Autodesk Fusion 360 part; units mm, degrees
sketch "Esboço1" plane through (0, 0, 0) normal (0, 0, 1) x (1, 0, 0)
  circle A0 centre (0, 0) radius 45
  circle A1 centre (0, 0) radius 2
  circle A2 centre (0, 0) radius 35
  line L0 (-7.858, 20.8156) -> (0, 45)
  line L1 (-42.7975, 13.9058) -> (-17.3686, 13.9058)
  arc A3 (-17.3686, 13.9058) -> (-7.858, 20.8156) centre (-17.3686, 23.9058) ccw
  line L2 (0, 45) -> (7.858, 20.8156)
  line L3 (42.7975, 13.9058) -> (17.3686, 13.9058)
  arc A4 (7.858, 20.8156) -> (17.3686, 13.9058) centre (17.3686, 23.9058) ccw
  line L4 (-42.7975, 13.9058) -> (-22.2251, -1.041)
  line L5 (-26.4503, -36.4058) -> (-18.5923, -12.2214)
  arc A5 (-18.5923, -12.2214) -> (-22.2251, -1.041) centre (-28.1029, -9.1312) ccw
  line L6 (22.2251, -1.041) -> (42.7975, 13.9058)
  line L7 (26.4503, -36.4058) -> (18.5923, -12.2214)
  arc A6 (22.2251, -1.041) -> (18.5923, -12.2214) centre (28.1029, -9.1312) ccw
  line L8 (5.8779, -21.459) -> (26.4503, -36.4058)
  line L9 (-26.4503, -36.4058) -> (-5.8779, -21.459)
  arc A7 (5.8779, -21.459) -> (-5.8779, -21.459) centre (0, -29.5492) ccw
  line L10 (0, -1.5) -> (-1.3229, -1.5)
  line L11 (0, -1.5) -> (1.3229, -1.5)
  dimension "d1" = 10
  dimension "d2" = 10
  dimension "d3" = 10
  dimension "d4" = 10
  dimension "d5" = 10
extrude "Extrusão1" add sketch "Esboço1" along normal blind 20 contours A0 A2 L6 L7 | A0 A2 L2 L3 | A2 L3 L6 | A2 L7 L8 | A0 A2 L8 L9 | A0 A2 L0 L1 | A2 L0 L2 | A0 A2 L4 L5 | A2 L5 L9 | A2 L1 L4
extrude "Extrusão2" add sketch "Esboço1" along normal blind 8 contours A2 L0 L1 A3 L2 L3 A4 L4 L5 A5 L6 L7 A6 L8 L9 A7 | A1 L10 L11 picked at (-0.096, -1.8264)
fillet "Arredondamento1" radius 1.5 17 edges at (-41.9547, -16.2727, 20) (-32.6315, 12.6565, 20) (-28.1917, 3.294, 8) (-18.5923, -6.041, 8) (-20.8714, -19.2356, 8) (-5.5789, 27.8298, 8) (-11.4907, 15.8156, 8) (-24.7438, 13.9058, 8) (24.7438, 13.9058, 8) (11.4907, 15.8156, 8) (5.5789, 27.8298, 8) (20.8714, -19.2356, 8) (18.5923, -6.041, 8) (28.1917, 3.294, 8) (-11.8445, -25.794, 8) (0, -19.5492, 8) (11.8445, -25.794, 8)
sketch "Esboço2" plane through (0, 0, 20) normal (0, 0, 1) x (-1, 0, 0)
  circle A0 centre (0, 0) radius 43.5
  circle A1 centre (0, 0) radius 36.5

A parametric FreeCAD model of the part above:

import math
import FreeCAD as App
import Part
import Sketcher
from FreeCAD import Vector
Q = App.Units.Quantity


def edges_at(feature, points):
    """Names of the edges that pass closest to the given points."""
    edges = feature.Shape.Edges
    near = lambda p: min(range(len(edges)), key=lambda i: edges[i].distToShape(Part.Vertex(*p))[0])
    return sorted({f"Edge{near(p) + 1}" for p in points})

doc = App.newDocument("Part")
body = doc.addObject("PartDesign::Body", "Body")

# Sketch on XY plane
sketch1 = doc.addObject("Sketcher::SketchObject", "Sketch")
body.addObject(sketch1)
sketch1.AttachmentSupport = (doc.XY_Plane, [""])
sketch1.MapMode = "FlatFace"
sketch1.addGeometry([
    Part.Circle(Vector(0, 0, 0), Vector(0, 0, 1), 45),
    Part.Circle(Vector(0, 0, 0), Vector(0, 0, 1), 35),
], False)
sketch1.addConstraint([
    Sketcher.Constraint("Coincident", 0, 3, -1, 1),
    Sketcher.Constraint("Coincident", 1, 3, -1, 1),
    Sketcher.Constraint("Diameter", 0, 90.0),
    Sketcher.Constraint("Diameter", 1, 70.0),
])
pad1 = doc.addObject("PartDesign::Pad", "Pad")
body.addObject(pad1)
pad1.Profile = sketch1
pad1.Length = 20

# Sketch on XY plane
sketch2 = doc.addObject("Sketcher::SketchObject", "Sketch001")
body.addObject(sketch2)
sketch2.AttachmentSupport = (doc.XY_Plane, [""])
sketch2.MapMode = "FlatFace"
sketch2.addGeometry([
    Part.ArcOfCircle(Part.Circle(Vector(0, 0, 0), Vector(0, 0, 1), 35), math.radians(12.59), math.radians(23.41)),  # 0
    Part.LineSegment(Vector(32.1, 13.9, 0), Vector(17.4, 13.9, 0)),  # 1
    Part.ArcOfCircle(Part.Circle(Vector(17.4, 23.9, 0), Vector(0, 0, 1), 10), math.radians(-162), math.radians(-90)),  # 2
    Part.LineSegment(Vector(7.9, 20.8, 0), Vector(3.3, 34.8, 0)),  # 3
    Part.ArcOfCircle(Part.Circle(Vector(0, 0, 0), Vector(0, 0, 1), 35), math.radians(84.59), math.radians(95.41)),  # 4
    Part.LineSegment(Vector(-3.3, 34.8, 0), Vector(-7.9, 20.8, 0)),  # 5
    Part.ArcOfCircle(Part.Circle(Vector(-17.4, 23.9, 0), Vector(0, 0, 1), 10), math.radians(-90), math.radians(-18)),  # 6
    Part.LineSegment(Vector(-17.4, 13.9, 0), Vector(-32.1, 13.9, 0)),  # 7
    Part.ArcOfCircle(Part.Circle(Vector(0, 0, 0), Vector(0, 0, 1), 35), math.radians(156.59), math.radians(167.41)),  # 8
    Part.LineSegment(Vector(-34.2, 7.6, 0), Vector(-22.2, -1, 0)),  # 9
    Part.ArcOfCircle(Part.Circle(Vector(-28.1, -9.1, 0), Vector(0, 0, 1), 10), math.radians(-18), math.radians(54)),  # 10
    Part.LineSegment(Vector(-18.6, -12.2, 0), Vector(-23.2, -26.2, 0)),  # 11
    Part.ArcOfCircle(Part.Circle(Vector(0, 0, 0), Vector(0, 0, 1), 35), math.radians(-131.41), math.radians(-120.59)),  # 12
    Part.LineSegment(Vector(-17.8, -30.1, 0), Vector(-5.9, -21.5, 0)),  # 13
    Part.ArcOfCircle(Part.Circle(Vector(0, -29.5, 0), Vector(0, 0, 1), 10), math.radians(54), math.radians(126)),  # 14
    Part.LineSegment(Vector(5.9, -21.5, 0), Vector(17.8, -30.1, 0)),  # 15
    Part.ArcOfCircle(Part.Circle(Vector(0, 0, 0), Vector(0, 0, 1), 35), math.radians(-59.41), math.radians(-48.59)),  # 16
    Part.LineSegment(Vector(23.2, -26.2, 0), Vector(18.6, -12.2, 0)),  # 17
    Part.ArcOfCircle(Part.Circle(Vector(28.1, -9.1, 0), Vector(0, 0, 1), 10), math.radians(126), math.radians(198)),  # 18
    Part.LineSegment(Vector(22.2, -1, 0), Vector(34.2, 7.6, 0)),  # 19
    Part.ArcOfCircle(Part.Circle(Vector(0, 0, 0), Vector(0, 0, 1), 2), math.radians(-49), math.radians(229)),  # 20
    Part.LineSegment(Vector(-1.3, -1.5, 0), Vector(1.3, -1.5, 0)),  # 21
], False)
sketch2.addConstraint([
    Sketcher.Constraint("Coincident", 0, 2, 1, 1),
    Sketcher.Constraint("Tangent", 1, 2, 2, 2),
    Sketcher.Constraint("Tangent", 2, 1, 3, 1),
    Sketcher.Constraint("Coincident", 3, 2, 4, 1),
    Sketcher.Constraint("Coincident", 4, 2, 5, 1),
    Sketcher.Constraint("Tangent", 5, 2, 6, 2),
    Sketcher.Constraint("Tangent", 6, 1, 7, 1),
    Sketcher.Constraint("Coincident", 7, 2, 8, 1),
    Sketcher.Constraint("Coincident", 8, 2, 9, 1),
    Sketcher.Constraint("Tangent", 9, 2, 10, 2),
    Sketcher.Constraint("Tangent", 10, 1, 11, 1),
    Sketcher.Constraint("Coincident", 11, 2, 12, 1),
    Sketcher.Constraint("Coincident", 12, 2, 13, 1),
    Sketcher.Constraint("Tangent", 13, 2, 14, 2),
    Sketcher.Constraint("Tangent", 14, 1, 15, 1),
    Sketcher.Constraint("Coincident", 15, 2, 16, 1),
    Sketcher.Constraint("Coincident", 16, 2, 17, 1),
    Sketcher.Constraint("Tangent", 17, 2, 18, 2),
    Sketcher.Constraint("Tangent", 18, 1, 19, 1),
    Sketcher.Constraint("Coincident", 19, 2, 0, 1),
    Sketcher.Constraint("Coincident", 20, 1, 21, 2),
    Sketcher.Constraint("Coincident", 21, 1, 20, 2),
    Sketcher.Constraint("Horizontal", 1),
    Sketcher.Constraint("Horizontal", 7),
    Sketcher.Constraint("Horizontal", 21),
    Sketcher.Constraint("Coincident", 0, 3, -1, 1),
    Sketcher.Constraint("Coincident", 4, 3, -1, 1),
    Sketcher.Constraint("Coincident", 8, 3, -1, 1),
    Sketcher.Constraint("Coincident", 12, 3, -1, 1),
    Sketcher.Constraint("Coincident", 16, 3, -1, 1),
    Sketcher.Constraint("Coincident", 20, 3, -1, 1),
    Sketcher.Constraint("Equal", 0, 4),
    Sketcher.Constraint("Equal", 2, 6),
    Sketcher.Constraint("Equal", 4, 8),
    Sketcher.Constraint("Equal", 6, 10),
    Sketcher.Constraint("Equal", 8, 12),
    Sketcher.Constraint("Equal", 10, 14),
    Sketcher.Constraint("Equal", 12, 16),
    Sketcher.Constraint("Equal", 14, 18),
    Sketcher.Constraint("Symmetric", 2, 3, 6, 3, -2),
    Sketcher.Constraint("Symmetric", 10, 3, 18, 3, -2),
    Sketcher.Constraint("Symmetric", 13, 2, 14, 1, -2),
    Sketcher.Constraint("Parallel", 5, 11),
    Sketcher.Constraint("Parallel", 9, 15),
    Sketcher.Constraint("Parallel", 3, 17),
    Sketcher.Constraint("Parallel", 13, 19),
    Sketcher.Constraint("Horizontal", 3, 2, 4, 2),
    Sketcher.Constraint("Equal", 5, 9),
    Sketcher.Constraint("Equal", 9, 11),
    Sketcher.Constraint("Equal", 11, 13),
    Sketcher.Constraint("Radius", 2, 10.0),
    Sketcher.Constraint("Radius", 0, 35.0),
    Sketcher.Constraint("Radius", 20, 2.0),
    Sketcher.Constraint("Angle", 3, Q("108 deg")),
    Sketcher.Constraint("Angle", 9, Q("-36.0001 deg")),
    Sketcher.Constraint("DistanceY", 20, 1, -1, 1, 1.5),
    Sketcher.Constraint("DistanceY", 11, 2, -1, 1, 26.25),
    Sketcher.Constraint("DistanceX", 1, 2, 1, 1, 14.7504),
])
pad2 = doc.addObject("PartDesign::Pad", "Pad001")
body.addObject(pad2)
pad2.Profile = sketch2
pad2.Length = 8
doc.recompute()

fillet = doc.addObject("PartDesign::Fillet", "Fillet")
body.addObject(fillet)
fillet.Base = (pad2, edges_at(pad2, [
    (-41.955, -16.273, 20),
    (-32.632, 12.656, 20),
    (-28.192, 3.294, 8),
    (-18.592, -6.041, 8),
    (-20.871, -19.236, 8),
    (-5.579, 27.83, 8),
    (-11.491, 15.816, 8),
    (-24.744, 13.906, 8),
    (24.744, 13.906, 8),
    (11.491, 15.816, 8),
    (5.579, 27.83, 8),
    (20.871, -19.236, 8),
    (18.592, -6.041, 8),
    (28.192, 3.294, 8),
    (-11.845, -25.794, 8),
    (0, -19.549, 8),
    (11.845, -25.794, 8),
]))
fillet.Radius = 1.5

doc.recompute()
